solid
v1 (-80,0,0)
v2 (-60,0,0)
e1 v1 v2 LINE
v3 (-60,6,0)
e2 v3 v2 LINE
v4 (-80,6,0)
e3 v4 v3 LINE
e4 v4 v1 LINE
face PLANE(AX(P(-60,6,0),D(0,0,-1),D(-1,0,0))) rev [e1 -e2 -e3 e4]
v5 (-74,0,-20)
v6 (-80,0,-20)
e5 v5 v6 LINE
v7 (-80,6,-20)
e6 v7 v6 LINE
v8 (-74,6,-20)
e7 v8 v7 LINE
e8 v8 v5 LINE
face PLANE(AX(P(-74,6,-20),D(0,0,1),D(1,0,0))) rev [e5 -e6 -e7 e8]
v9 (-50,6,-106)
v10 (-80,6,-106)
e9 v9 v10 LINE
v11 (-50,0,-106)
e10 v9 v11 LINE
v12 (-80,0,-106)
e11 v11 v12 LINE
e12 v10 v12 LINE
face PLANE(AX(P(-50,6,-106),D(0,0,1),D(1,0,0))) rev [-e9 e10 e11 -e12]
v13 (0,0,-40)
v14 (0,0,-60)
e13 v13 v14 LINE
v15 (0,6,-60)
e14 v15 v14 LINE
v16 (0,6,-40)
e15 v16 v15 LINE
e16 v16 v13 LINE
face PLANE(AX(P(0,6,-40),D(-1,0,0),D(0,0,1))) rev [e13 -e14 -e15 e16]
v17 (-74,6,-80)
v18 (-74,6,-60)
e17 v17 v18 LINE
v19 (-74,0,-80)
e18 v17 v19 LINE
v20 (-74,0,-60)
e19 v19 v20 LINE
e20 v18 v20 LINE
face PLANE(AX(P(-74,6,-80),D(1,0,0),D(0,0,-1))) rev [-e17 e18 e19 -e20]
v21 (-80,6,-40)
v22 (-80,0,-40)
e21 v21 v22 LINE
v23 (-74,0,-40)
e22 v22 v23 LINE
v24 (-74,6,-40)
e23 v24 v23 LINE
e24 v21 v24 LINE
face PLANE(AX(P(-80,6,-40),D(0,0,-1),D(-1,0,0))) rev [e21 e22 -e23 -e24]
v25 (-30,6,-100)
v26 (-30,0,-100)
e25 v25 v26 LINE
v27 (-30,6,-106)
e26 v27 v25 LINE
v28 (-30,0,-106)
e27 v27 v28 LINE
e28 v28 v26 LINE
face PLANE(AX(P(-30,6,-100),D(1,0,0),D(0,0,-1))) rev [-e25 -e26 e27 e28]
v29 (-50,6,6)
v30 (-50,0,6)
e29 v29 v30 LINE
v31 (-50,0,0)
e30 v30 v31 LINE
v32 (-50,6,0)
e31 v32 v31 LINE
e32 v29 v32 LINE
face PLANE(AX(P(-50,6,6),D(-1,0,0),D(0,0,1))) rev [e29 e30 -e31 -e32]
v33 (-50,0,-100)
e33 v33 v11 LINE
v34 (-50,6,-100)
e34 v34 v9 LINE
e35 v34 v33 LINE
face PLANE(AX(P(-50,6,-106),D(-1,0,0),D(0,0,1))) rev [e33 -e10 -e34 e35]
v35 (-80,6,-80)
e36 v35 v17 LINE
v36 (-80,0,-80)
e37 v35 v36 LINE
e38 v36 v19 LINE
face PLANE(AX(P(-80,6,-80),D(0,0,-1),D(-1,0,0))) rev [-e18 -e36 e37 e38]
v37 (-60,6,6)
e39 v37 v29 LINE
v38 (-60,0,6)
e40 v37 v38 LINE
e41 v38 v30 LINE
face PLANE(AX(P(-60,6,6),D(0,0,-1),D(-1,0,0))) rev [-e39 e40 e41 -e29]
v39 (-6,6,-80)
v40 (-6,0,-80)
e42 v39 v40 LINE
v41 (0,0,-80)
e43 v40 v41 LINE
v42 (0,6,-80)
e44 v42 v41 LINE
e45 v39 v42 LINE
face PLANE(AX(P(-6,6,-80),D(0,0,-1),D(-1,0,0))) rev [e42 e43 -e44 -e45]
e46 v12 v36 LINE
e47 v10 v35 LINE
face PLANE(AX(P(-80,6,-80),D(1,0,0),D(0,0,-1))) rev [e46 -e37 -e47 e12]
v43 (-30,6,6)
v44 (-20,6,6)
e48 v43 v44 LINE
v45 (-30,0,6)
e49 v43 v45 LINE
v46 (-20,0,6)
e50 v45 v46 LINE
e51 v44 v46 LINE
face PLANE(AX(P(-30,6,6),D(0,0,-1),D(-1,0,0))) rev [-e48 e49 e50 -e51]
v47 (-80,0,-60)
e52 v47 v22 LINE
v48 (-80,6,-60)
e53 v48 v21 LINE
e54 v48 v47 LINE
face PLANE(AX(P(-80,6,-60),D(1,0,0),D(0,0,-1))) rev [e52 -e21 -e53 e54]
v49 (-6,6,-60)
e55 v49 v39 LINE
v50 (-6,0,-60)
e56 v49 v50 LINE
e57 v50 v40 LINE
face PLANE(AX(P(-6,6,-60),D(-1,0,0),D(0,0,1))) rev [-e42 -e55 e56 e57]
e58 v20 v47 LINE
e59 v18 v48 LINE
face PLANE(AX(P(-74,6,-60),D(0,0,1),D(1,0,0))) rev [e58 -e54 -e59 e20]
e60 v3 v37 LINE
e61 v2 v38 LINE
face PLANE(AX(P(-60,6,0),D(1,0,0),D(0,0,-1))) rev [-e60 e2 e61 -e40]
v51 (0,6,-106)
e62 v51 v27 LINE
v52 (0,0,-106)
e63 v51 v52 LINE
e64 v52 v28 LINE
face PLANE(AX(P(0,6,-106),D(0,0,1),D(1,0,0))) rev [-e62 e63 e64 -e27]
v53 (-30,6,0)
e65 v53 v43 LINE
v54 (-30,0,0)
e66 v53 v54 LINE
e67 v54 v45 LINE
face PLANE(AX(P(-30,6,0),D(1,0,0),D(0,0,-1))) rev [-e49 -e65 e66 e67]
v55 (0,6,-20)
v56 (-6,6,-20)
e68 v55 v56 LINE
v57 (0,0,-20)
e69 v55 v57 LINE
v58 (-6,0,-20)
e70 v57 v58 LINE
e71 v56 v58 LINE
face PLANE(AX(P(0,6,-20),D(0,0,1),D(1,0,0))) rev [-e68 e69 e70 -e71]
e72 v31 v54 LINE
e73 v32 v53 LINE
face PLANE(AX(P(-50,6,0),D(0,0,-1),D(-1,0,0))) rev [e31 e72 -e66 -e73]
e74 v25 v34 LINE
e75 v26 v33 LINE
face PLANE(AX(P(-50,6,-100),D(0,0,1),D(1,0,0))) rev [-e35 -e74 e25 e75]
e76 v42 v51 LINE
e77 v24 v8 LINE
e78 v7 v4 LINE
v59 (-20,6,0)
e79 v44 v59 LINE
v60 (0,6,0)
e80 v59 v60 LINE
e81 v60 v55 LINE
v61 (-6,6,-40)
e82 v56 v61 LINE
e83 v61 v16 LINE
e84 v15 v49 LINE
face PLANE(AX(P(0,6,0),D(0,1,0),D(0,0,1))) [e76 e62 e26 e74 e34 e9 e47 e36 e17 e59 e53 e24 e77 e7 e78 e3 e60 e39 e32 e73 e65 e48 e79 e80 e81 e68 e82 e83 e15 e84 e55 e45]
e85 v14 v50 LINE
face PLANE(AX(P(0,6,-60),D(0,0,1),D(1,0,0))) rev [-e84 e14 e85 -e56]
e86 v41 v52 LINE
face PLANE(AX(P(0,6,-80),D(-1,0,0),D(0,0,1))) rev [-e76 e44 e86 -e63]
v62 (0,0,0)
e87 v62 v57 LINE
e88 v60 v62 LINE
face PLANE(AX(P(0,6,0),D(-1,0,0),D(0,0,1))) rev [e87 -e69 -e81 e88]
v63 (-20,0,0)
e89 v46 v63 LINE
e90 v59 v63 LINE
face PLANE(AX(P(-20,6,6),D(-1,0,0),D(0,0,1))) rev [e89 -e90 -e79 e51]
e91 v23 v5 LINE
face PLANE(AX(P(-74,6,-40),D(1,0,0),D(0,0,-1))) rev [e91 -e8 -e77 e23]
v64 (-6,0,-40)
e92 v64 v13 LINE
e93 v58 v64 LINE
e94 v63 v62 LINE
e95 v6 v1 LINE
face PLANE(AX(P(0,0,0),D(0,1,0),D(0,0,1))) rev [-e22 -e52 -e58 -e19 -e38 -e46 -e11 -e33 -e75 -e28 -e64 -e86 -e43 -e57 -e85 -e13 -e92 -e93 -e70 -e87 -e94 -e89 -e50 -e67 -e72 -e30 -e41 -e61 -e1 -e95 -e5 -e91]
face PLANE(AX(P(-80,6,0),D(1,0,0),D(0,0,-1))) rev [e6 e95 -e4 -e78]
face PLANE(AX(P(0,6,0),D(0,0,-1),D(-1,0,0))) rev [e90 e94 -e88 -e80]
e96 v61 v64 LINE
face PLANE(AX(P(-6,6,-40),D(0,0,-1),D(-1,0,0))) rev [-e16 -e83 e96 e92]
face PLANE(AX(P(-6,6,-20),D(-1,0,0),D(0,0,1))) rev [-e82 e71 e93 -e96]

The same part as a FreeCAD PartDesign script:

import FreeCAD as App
import Part
import Sketcher
Q = App.Units.Quantity

doc = App.newDocument("Part")
params = doc.addObject("Spreadsheet::Sheet", "Params")
for row, (alias, value) in enumerate([
    ("sketch1_width", "6 mm"),
    ("sketch1_width2", "20 mm"),
    ("sketch1_width3", "10 mm"),
    ("sketch1_height", "26 mm"),
    ("pad1_length", "6 mm"),
], start=1):
    params.set(f"A{row}", alias)
    params.set(f"B{row}", "=" + value)
    params.setAlias(f"B{row}", alias)

body = doc.addObject("PartDesign::Body", "Body")

sketch1 = body.newObject("Sketcher::SketchObject", "Sketch")
sketch1.AttachmentSupport = (doc.getObject("XZ_Plane"), [""])
sketch1.MapMode = "FlatFace"
sketch1.addGeometry(Part.LineSegment(App.Vector(-80, -80, 0), App.Vector(-74, -80, 0)), False)
sketch1.addGeometry(Part.LineSegment(App.Vector(-74, -80, 0), App.Vector(-74, -60, 0)), False)
sketch1.addGeometry(Part.LineSegment(App.Vector(-74, -60, 0), App.Vector(-80, -60, 0)), False)
sketch1.addGeometry(Part.LineSegment(App.Vector(-80, -60, 0), App.Vector(-80, -40, 0)), False)
sketch1.addGeometry(Part.LineSegment(App.Vector(-80, -40, 0), App.Vector(-74, -40, 0)), False)
sketch1.addGeometry(Part.LineSegment(App.Vector(-74, -40, 0), App.Vector(-74, -20, 0)), False)
sketch1.addGeometry(Part.LineSegment(App.Vector(-74, -20, 0), App.Vector(-80, -20, 0)), False)
sketch1.addGeometry(Part.LineSegment(App.Vector(-80, -20, 0), App.Vector(-80, 0, 0)), False)
sketch1.addGeometry(Part.LineSegment(App.Vector(-80, 0, 0), App.Vector(-60, 0, 0)), False)
sketch1.addGeometry(Part.LineSegment(App.Vector(-60, 0, 0), App.Vector(-60, 6, 0)), False)
sketch1.addGeometry(Part.LineSegment(App.Vector(-60, 6, 0), App.Vector(-50, 6, 0)), False)
sketch1.addGeometry(Part.LineSegment(App.Vector(-50, 6, 0), App.Vector(-50, 0, 0)), False)
sketch1.addGeometry(Part.LineSegment(App.Vector(-50, 0, 0), App.Vector(-30, 0, 0)), False)
sketch1.addGeometry(Part.LineSegment(App.Vector(-30, 0, 0), App.Vector(-30, 6, 0)), False)
sketch1.addGeometry(Part.LineSegment(App.Vector(-30, 6, 0), App.Vector(-20, 6, 0)), False)
sketch1.addGeometry(Part.LineSegment(App.Vector(-20, 6, 0), App.Vector(-20, 0, 0)), False)
sketch1.addGeometry(Part.LineSegment(App.Vector(-20, 0, 0), App.Vector(0, 0, 0)), False)
sketch1.addGeometry(Part.LineSegment(App.Vector(0, 0, 0), App.Vector(0, -20, 0)), False)
sketch1.addGeometry(Part.LineSegment(App.Vector(0, -20, 0), App.Vector(-6, -20, 0)), False)
sketch1.addGeometry(Part.LineSegment(App.Vector(-6, -20, 0), App.Vector(-6, -40, 0)), False)
sketch1.addGeometry(Part.LineSegment(App.Vector(-6, -40, 0), App.Vector(0, -40, 0)), False)
sketch1.addGeometry(Part.LineSegment(App.Vector(0, -40, 0), App.Vector(0, -60, 0)), False)
sketch1.addGeometry(Part.LineSegment(App.Vector(0, -60, 0), App.Vector(-6, -60, 0)), False)
sketch1.addGeometry(Part.LineSegment(App.Vector(-6, -60, 0), App.Vector(-6, -80, 0)), False)
sketch1.addGeometry(Part.LineSegment(App.Vector(-6, -80, 0), App.Vector(0, -80, 0)), False)
sketch1.addGeometry(Part.LineSegment(App.Vector(0, -80, 0), App.Vector(0, -106, 0)), False)
sketch1.addGeometry(Part.LineSegment(App.Vector(0, -106, 0), App.Vector(-30, -106, 0)), False)
sketch1.addGeometry(Part.LineSegment(App.Vector(-30, -106, 0), App.Vector(-30, -100, 0)), False)
sketch1.addGeometry(Part.LineSegment(App.Vector(-30, -100, 0), App.Vector(-50, -100, 0)), False)
sketch1.addGeometry(Part.LineSegment(App.Vector(-50, -100, 0), App.Vector(-50, -106, 0)), False)
sketch1.addGeometry(Part.LineSegment(App.Vector(-50, -106, 0), App.Vector(-80, -106, 0)), False)
sketch1.addGeometry(Part.LineSegment(App.Vector(-80, -106, 0), App.Vector(-80, -80, 0)), False)
sketch1.addConstraint(Sketcher.Constraint("Coincident", 0, 2, 1, 1))
sketch1.addConstraint(Sketcher.Constraint("Coincident", 1, 2, 2, 1))
sketch1.addConstraint(Sketcher.Constraint("Coincident", 2, 2, 3, 1))
sketch1.addConstraint(Sketcher.Constraint("Coincident", 3, 2, 4, 1))
sketch1.addConstraint(Sketcher.Constraint("Coincident", 4, 2, 5, 1))
sketch1.addConstraint(Sketcher.Constraint("Coincident", 5, 2, 6, 1))
sketch1.addConstraint(Sketcher.Constraint("Coincident", 6, 2, 7, 1))
sketch1.addConstraint(Sketcher.Constraint("Coincident", 7, 2, 8, 1))
sketch1.addConstraint(Sketcher.Constraint("Coincident", 8, 2, 9, 1))
sketch1.addConstraint(Sketcher.Constraint("Coincident", 9, 2, 10, 1))
sketch1.addConstraint(Sketcher.Constraint("Coincident", 10, 2, 11, 1))
sketch1.addConstraint(Sketcher.Constraint("Coincident", 11, 2, 12, 1))
sketch1.addConstraint(Sketcher.Constraint("Coincident", 12, 2, 13, 1))
sketch1.addConstraint(Sketcher.Constraint("Coincident", 13, 2, 14, 1))
sketch1.addConstraint(Sketcher.Constraint("Coincident", 14, 2, 15, 1))
sketch1.addConstraint(Sketcher.Constraint("Coincident", 15, 2, 16, 1))
sketch1.addConstraint(Sketcher.Constraint("Coincident", 16, 2, 17, 1))
sketch1.addConstraint(Sketcher.Constraint("Coincident", 17, 2, 18, 1))
sketch1.addConstraint(Sketcher.Constraint("Coincident", 18, 2, 19, 1))
sketch1.addConstraint(Sketcher.Constraint("Coincident", 19, 2, 20, 1))
sketch1.addConstraint(Sketcher.Constraint("Coincident", 20, 2, 21, 1))
sketch1.addConstraint(Sketcher.Constraint("Coincident", 21, 2, 22, 1))
sketch1.addConstraint(Sketcher.Constraint("Coincident", 22, 2, 23, 1))
sketch1.addConstraint(Sketcher.Constraint("Coincident", 23, 2, 24, 1))
sketch1.addConstraint(Sketcher.Constraint("Coincident", 24, 2, 25, 1))
sketch1.addConstraint(Sketcher.Constraint("Coincident", 25, 2, 26, 1))
sketch1.addConstraint(Sketcher.Constraint("Coincident", 26, 2, 27, 1))
sketch1.addConstraint(Sketcher.Constraint("Coincident", 27, 2, 28, 1))
sketch1.addConstraint(Sketcher.Constraint("Coincident", 28, 2, 29, 1))
sketch1.addConstraint(Sketcher.Constraint("Coincident", 29, 2, 30, 1))
sketch1.addConstraint(Sketcher.Constraint("Coincident", 30, 2, 31, 1))
sketch1.addConstraint(Sketcher.Constraint("Coincident", 31, 2, 0, 1))
sketch1.addConstraint(Sketcher.Constraint("Horizontal", 0))
sketch1.addConstraint(Sketcher.Constraint("Vertical", 1))
sketch1.addConstraint(Sketcher.Constraint("Horizontal", 2))
sketch1.addConstraint(Sketcher.Constraint("Vertical", 3))
sketch1.addConstraint(Sketcher.Constraint("Horizontal", 4))
sketch1.addConstraint(Sketcher.Constraint("Vertical", 5))
sketch1.addConstraint(Sketcher.Constraint("Horizontal", 6))
sketch1.addConstraint(Sketcher.Constraint("Vertical", 7))
sketch1.addConstraint(Sketcher.Constraint("Horizontal", 8))
sketch1.addConstraint(Sketcher.Constraint("Vertical", 9))
sketch1.addConstraint(Sketcher.Constraint("Horizontal", 10))
sketch1.addConstraint(Sketcher.Constraint("Vertical", 11))
sketch1.addConstraint(Sketcher.Constraint("Horizontal", 12))
sketch1.addConstraint(Sketcher.Constraint("Vertical", 13))
sketch1.addConstraint(Sketcher.Constraint("Horizontal", 14))
sketch1.addConstraint(Sketcher.Constraint("Vertical", 15))
sketch1.addConstraint(Sketcher.Constraint("Horizontal", 16))
sketch1.addConstraint(Sketcher.Constraint("Vertical", 17))
sketch1.addConstraint(Sketcher.Constraint("Horizontal", 18))
sketch1.addConstraint(Sketcher.Constraint("Vertical", 19))
sketch1.addConstraint(Sketcher.Constraint("Horizontal", 20))
sketch1.addConstraint(Sketcher.Constraint("Vertical", 21))
sketch1.addConstraint(Sketcher.Constraint("Horizontal", 22))
sketch1.addConstraint(Sketcher.Constraint("Vertical", 23))
sketch1.addConstraint(Sketcher.Constraint("Horizontal", 24))
sketch1.addConstraint(Sketcher.Constraint("Vertical", 25))
sketch1.addConstraint(Sketcher.Constraint("Horizontal", 26))
sketch1.addConstraint(Sketcher.Constraint("Vertical", 27))
sketch1.addConstraint(Sketcher.Constraint("Horizontal", 28))
sketch1.addConstraint(Sketcher.Constraint("Vertical", 29))
sketch1.addConstraint(Sketcher.Constraint("Horizontal", 30))
sketch1.addConstraint(Sketcher.Constraint("Vertical", 31))
sketch1.addConstraint(Sketcher.Constraint("Coincident", 16, 2, -1, 1))
sketch1.addConstraint(Sketcher.Constraint("PointOnObject", 7, 2, -1))
sketch1.addConstraint(Sketcher.Constraint("PointOnObject", 11, 2, -1))
sketch1.addConstraint(Sketcher.Constraint("PointOnObject", 20, 2, -2))
sketch1.addConstraint(Sketcher.Constraint("PointOnObject", 24, 2, -2))
sketch1.addConstraint(Sketcher.Constraint("Horizontal", 10, 2, 13, 2))
sketch1.addConstraint(Sketcher.Constraint("Horizontal", 6, 2, 17, 2))
sketch1.addConstraint(Sketcher.Constraint("Horizontal", 4, 2, 19, 2))
sketch1.addConstraint(Sketcher.Constraint("Horizontal", 2, 2, 21, 2))
sketch1.addConstraint(Sketcher.Constraint("Horizontal", 0, 2, 23, 2))
sketch1.addConstraint(Sketcher.Constraint("Horizontal", 26, 2, 29, 2))
sketch1.addConstraint(Sketcher.Constraint("Vertical", 1, 2, 4, 2))
sketch1.addConstraint(Sketcher.Constraint("Vertical", 3, 2, 6, 2))
sketch1.addConstraint(Sketcher.Constraint("Vertical", 19, 2, 22, 2))
sketch1.addConstraint(Sketcher.Constraint("Vertical", 13, 2, 26, 2))
sketch1.addConstraint(Sketcher.Constraint("Vertical", 11, 2, 28, 2))
sketch1.addConstraint(Sketcher.Constraint("Vertical", 7, 2, 30, 2))
sketch1.addConstraint(Sketcher.Constraint("Equal", 8, 12))
sketch1.addConstraint(Sketcher.Constraint("Equal", 10, 14))
sketch1.addConstraint(Sketcher.Constraint("Equal", 12, 16))
sketch1.addConstraint(Sketcher.Constraint("Equal", 6, 18))
sketch1.addConstraint(Sketcher.Constraint("Equal", 28, 1))
sketch1.addConstraint(Sketcher.Constraint("Equal", 1, 3))
sketch1.addConstraint(Sketcher.Constraint("Equal", 3, 5))
sketch1.addConstraint(Sketcher.Constraint("Equal", 5, 7))
sketch1.addConstraint(Sketcher.Constraint("Equal", 24, 9))
sketch1.addConstraint(Sketcher.Constraint("Equal", 15, 27))
sketch1.addConstraint(Sketcher.Constraint("DistanceX", 0, 1, 0, 2, Q("6 mm")))
sketch1.addConstraint(Sketcher.Constraint("DistanceX", 8, 1, 8, 2, Q("20 mm")))
sketch1.addConstraint(Sketcher.Constraint("DistanceX", 10, 1, 10, 2, Q("10 mm")))
sketch1.addConstraint(Sketcher.Constraint("DistanceY", 25, 2, 25, 1, Q("26 mm")))
sketch1.setExpression("Constraints[91]", "Params.sketch1_width")
sketch1.setExpression("Constraints[92]", "Params.sketch1_width2")
sketch1.setExpression("Constraints[93]", "Params.sketch1_width3")
sketch1.setExpression("Constraints[94]", "Params.sketch1_height")
pad1 = body.newObject("PartDesign::Pad", "Pad")
pad1.Profile = sketch1
pad1.setExpression("Length", "Params.pad1_length")
pad1.Reversed = True

doc.recompute()
